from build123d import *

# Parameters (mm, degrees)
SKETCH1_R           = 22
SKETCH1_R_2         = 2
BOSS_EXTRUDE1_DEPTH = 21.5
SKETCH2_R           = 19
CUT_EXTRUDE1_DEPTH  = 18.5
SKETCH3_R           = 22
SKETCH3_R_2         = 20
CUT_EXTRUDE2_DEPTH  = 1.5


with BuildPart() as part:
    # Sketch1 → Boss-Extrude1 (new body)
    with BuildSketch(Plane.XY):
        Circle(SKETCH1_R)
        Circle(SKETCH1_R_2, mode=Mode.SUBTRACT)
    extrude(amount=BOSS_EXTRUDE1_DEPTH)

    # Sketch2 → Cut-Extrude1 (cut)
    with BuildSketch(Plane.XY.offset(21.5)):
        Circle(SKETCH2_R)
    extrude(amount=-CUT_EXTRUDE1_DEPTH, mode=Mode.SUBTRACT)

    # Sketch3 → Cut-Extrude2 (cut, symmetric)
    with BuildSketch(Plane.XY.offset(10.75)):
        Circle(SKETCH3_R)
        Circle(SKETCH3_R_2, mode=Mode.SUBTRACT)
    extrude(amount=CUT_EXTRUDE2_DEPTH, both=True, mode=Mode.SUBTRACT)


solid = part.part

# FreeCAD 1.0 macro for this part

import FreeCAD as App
import Part
import Sketcher

V = App.Vector

doc = App.newDocument("Part")
params = doc.addObject("Spreadsheet::Sheet", "Params")
for row, (alias, value) in enumerate([
    ("sketch1_diameter", "44 mm"),
    ("sketch1_diameter2", "4 mm"),
    ("pad1_length", "21.5 mm"),
    ("sketch2_diameter", "38 mm"),
    ("pocket1_length", "18.5 mm"),
    ("sketch3_diameter", "44 mm"),
    ("sketch3_diameter2", "40 mm"),
    ("pocket2_length", "3 mm"),
], start=1):
    params.set(f"A{row}", alias)
    params.set(f"B{row}", "=" + value)
    params.setAlias(f"B{row}", alias)

body = doc.addObject("PartDesign::Body", "Body")

# Sketch on XY plane
sketch1 = doc.addObject("Sketcher::SketchObject", "Sketch")
body.addObject(sketch1)
sketch1.AttachmentSupport = (doc.XY_Plane, [""])
sketch1.MapMode = "FlatFace"
sketch1.addGeometry([
    Part.Circle(V(0, 0, 0), V(0, 0, 1), 22),
    Part.Circle(V(0, 0, 0), V(0, 0, 1), 2),
], False)
sketch1.addConstraint([
    Sketcher.Constraint("Coincident", 0, 3, -1, 1),
    Sketcher.Constraint("Coincident", 1, 3, -1, 1),
    Sketcher.Constraint("Diameter", 0, 44.0),
    Sketcher.Constraint("Diameter", 1, 4.0),
])
sketch1.setExpression("Constraints[2]", "Params.sketch1_diameter")
sketch1.setExpression("Constraints[3]", "Params.sketch1_diameter2")
pad1 = doc.addObject("PartDesign::Pad", "Pad")
body.addObject(pad1)
pad1.Profile = sketch1
pad1.setExpression("Length", "Params.pad1_length")

# Sketch on XY plane
sketch2 = doc.addObject("Sketcher::SketchObject", "Sketch001")
body.addObject(sketch2)
sketch2.AttachmentSupport = (doc.XY_Plane, [""])
sketch2.MapMode = "FlatFace"
sketch2.AttachmentOffset = App.Placement(V(0, 0, 21.5), App.Rotation())
sketch2.addGeometry(Part.Circle(V(0, 0, 0), V(0, 0, 1), 19), False)
sketch2.addConstraint([
    Sketcher.Constraint("Coincident", 0, 3, -1, 1),
    Sketcher.Constraint("Diameter", 0, 38.0),
])
sketch2.setExpression("Constraints[1]", "Params.sketch2_diameter")
pocket1 = doc.addObject("PartDesign::Pocket", "Pocket")
body.addObject(pocket1)
pocket1.Profile = sketch2
pocket1.setExpression("Length", "Params.pocket1_length")

# Sketch on XY plane
sketch3 = doc.addObject("Sketcher::SketchObject", "Sketch002")
body.addObject(sketch3)
sketch3.AttachmentSupport = (doc.XY_Plane, [""])
sketch3.MapMode = "FlatFace"
sketch3.AttachmentOffset = App.Placement(V(0, 0, 10.75), App.Rotation())
sketch3.addGeometry([
    Part.Circle(V(0, 0, 0), V(0, 0, 1), 22),
    Part.Circle(V(0, 0, 0), V(0, 0, 1), 20),
], False)
sketch3.addConstraint([
    Sketcher.Constraint("Coincident", 0, 3, -1, 1),
    Sketcher.Constraint("Coincident", 1, 3, -1, 1),
    Sketcher.Constraint("Diameter", 0, 44.0),
    Sketcher.Constraint("Diameter", 1, 40.0),
])
sketch3.setExpression("Constraints[2]", "Params.sketch3_diameter")
sketch3.setExpression("Constraints[3]", "Params.sketch3_diameter2")
pocket2 = doc.addObject("PartDesign::Pocket", "Pocket001")
body.addObject(pocket2)
pocket2.Profile = sketch3
pocket2.setExpression("Length", "Params.pocket2_length")
pocket2.Midplane = True

doc.recompute()
